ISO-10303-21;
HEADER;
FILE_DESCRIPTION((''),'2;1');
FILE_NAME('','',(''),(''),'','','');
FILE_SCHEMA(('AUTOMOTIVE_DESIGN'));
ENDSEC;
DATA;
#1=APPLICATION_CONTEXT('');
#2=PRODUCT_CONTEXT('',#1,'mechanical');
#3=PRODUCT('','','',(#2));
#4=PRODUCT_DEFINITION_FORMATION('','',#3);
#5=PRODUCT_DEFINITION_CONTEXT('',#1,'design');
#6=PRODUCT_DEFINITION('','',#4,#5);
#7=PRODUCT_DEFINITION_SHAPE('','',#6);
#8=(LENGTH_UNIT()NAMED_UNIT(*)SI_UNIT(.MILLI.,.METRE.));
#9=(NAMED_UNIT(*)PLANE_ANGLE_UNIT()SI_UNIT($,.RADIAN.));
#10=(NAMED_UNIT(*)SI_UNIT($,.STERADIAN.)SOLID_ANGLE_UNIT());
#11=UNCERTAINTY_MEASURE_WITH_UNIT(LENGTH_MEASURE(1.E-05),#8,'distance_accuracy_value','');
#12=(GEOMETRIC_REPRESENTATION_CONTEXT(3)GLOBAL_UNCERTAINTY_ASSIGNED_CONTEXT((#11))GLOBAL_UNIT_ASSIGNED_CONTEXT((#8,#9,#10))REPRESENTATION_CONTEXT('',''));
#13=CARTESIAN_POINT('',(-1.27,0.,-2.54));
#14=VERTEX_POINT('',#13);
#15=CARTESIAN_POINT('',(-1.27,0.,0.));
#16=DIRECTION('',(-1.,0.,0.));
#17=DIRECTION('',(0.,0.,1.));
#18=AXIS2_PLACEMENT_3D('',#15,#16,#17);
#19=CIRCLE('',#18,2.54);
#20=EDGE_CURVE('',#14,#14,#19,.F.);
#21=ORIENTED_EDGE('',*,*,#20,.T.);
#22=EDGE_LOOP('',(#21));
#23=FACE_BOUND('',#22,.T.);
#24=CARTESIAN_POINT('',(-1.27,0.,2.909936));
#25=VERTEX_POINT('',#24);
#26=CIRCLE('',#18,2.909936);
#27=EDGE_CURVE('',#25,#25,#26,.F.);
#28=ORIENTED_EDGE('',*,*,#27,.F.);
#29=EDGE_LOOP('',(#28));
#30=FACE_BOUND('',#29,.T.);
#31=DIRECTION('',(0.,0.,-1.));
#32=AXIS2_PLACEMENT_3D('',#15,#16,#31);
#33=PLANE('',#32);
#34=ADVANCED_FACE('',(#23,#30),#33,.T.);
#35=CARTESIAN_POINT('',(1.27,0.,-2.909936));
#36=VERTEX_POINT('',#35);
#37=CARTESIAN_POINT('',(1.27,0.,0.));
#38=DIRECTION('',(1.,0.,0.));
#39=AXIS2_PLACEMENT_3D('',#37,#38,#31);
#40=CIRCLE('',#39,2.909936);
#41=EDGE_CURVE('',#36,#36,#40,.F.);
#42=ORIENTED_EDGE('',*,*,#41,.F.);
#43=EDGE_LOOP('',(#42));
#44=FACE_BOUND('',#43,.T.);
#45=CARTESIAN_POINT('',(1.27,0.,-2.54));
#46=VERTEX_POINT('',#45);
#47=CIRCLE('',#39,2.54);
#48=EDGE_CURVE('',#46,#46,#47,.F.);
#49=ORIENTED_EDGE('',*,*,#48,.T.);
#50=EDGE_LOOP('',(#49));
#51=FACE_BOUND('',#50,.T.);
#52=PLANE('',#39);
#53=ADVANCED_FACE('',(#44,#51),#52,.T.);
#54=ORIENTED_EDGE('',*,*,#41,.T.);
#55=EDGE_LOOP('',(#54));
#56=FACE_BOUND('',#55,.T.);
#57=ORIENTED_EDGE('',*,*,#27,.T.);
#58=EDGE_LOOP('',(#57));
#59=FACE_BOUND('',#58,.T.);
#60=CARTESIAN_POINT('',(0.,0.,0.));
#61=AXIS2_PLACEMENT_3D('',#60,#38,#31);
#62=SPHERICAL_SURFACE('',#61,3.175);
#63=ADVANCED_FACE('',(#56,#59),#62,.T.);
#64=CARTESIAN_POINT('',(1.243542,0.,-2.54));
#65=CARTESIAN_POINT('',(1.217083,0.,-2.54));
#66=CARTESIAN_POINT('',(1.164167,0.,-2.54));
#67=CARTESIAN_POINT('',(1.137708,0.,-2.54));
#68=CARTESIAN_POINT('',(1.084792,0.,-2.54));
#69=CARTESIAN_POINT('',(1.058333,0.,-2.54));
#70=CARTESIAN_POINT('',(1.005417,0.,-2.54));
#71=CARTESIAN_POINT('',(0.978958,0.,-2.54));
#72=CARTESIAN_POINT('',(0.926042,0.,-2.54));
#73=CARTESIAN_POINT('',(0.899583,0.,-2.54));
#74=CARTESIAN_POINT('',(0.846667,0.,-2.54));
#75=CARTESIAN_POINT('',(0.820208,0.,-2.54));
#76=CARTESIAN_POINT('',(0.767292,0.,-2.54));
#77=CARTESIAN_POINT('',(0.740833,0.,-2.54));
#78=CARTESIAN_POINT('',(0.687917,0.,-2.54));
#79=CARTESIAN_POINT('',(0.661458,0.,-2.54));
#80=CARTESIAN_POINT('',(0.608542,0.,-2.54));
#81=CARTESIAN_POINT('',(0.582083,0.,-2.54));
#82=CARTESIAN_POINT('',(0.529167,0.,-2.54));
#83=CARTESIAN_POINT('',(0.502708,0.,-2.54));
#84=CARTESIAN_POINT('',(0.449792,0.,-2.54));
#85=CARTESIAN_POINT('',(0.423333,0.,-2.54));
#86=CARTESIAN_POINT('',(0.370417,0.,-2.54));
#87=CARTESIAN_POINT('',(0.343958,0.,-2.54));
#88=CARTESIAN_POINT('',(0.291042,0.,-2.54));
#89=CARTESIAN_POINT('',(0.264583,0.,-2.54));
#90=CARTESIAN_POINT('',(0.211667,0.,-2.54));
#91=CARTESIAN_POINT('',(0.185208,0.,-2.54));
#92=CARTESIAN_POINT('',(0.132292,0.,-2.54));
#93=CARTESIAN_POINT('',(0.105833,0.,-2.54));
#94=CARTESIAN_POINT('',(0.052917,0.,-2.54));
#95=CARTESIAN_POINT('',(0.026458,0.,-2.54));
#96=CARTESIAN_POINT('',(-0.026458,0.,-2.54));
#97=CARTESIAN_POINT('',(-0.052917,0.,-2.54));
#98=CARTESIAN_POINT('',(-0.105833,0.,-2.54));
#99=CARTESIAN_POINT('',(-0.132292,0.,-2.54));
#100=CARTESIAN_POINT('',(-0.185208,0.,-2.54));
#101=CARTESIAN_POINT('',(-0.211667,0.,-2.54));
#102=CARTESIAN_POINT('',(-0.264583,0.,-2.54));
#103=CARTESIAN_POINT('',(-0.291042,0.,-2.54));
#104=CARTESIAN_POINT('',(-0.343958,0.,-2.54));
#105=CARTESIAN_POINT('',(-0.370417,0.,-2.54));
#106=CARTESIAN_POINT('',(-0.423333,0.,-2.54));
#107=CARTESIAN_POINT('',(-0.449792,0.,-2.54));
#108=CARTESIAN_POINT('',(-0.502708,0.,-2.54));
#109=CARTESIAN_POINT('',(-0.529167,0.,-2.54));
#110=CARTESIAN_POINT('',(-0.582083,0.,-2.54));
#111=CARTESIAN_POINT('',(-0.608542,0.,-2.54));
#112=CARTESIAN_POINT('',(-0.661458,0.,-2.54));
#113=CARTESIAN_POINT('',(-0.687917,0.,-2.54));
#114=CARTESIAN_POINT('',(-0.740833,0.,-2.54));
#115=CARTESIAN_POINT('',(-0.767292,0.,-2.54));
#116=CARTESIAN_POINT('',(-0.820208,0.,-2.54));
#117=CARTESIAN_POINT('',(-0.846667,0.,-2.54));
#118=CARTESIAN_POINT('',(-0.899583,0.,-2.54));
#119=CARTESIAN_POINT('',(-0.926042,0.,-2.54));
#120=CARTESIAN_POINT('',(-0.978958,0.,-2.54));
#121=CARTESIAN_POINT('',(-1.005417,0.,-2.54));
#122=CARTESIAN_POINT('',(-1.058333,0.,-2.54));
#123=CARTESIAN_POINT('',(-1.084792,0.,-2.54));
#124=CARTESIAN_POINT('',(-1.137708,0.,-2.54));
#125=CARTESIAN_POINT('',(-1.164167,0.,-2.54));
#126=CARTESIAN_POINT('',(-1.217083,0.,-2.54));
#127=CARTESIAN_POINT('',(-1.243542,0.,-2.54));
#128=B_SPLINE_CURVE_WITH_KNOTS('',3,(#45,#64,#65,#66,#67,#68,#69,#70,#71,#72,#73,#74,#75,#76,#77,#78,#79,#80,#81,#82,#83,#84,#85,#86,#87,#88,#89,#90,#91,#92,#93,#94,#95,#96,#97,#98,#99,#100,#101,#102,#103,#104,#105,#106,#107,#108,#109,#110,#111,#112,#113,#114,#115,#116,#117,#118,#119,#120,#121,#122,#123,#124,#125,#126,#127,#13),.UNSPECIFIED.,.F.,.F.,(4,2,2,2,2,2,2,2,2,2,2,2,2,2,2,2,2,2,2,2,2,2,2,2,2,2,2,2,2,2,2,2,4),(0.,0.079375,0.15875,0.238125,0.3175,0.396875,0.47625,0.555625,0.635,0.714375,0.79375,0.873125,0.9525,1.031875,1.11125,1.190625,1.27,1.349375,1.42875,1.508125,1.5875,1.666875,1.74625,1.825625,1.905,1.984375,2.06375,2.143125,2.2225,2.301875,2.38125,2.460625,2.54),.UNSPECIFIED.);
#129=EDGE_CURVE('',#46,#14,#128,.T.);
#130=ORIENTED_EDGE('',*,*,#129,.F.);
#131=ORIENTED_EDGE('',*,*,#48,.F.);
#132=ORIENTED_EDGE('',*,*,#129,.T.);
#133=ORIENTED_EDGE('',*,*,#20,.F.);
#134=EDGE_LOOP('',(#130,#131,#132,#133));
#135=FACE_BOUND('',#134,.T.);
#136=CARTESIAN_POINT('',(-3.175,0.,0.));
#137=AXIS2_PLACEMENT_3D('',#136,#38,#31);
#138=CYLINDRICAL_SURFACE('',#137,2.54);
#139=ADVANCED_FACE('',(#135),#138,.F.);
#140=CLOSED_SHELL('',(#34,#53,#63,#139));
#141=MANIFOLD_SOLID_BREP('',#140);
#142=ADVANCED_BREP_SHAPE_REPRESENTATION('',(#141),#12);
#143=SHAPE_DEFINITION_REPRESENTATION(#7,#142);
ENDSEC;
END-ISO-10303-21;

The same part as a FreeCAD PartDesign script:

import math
import FreeCAD as App
import Part
import Sketcher
from FreeCAD import Vector
Q = App.Units.Quantity

doc = App.newDocument("Part")
body = doc.addObject("PartDesign::Body", "Body")

# Sketch on XZ plane
sketch1 = doc.addObject("Sketcher::SketchObject", "Sketch")
body.addObject(sketch1)
sketch1.AttachmentSupport = (doc.XZ_Plane, [""])
sketch1.MapMode = "FlatFace"
sketch1.addGeometry([
    Part.LineSegment(Vector(0, 3.175, 0), Vector(0, -3.175, 0)),
    Part.ArcOfCircle(Part.Circle(Vector(0, 0, 0), Vector(0, 0, 1), 3.175), math.radians(90), math.radians(270)),
], False)
sketch1.addConstraint([
    Sketcher.Constraint("Coincident", 0, 1, 1, 1),
    Sketcher.Constraint("Coincident", 1, 2, 0, 2),
    Sketcher.Constraint("Vertical", 0),
    Sketcher.Constraint("Coincident", 1, 3, -1, 1),
    Sketcher.Constraint("PointOnObject", 0, 1, -2),
    Sketcher.Constraint("Radius", 1, Q("0.125 in")),
])
revolution = doc.addObject("PartDesign::Revolution", "Revolution")
body.addObject(revolution)
revolution.Profile = sketch1
revolution.ReferenceAxis = (sketch1, ["V_Axis"])
revolution.Angle = 360

# Sketch on YZ plane
sketch2 = doc.addObject("Sketcher::SketchObject", "Sketch001")
body.addObject(sketch2)
sketch2.AttachmentSupport = (doc.YZ_Plane, [""])
sketch2.MapMode = "FlatFace"
sketch2.AttachmentOffset = App.Placement(Vector(0, 0, 0.175 * 25.4), App.Rotation())
sketch2.addGeometry(Part.Circle(Vector(0, 0, 0), Vector(0, 0, 1), 2.54), False)
sketch2.addConstraint([
    Sketcher.Constraint("Coincident", 0, 3, -1, 1),
    Sketcher.Constraint("Diameter", 0, Q("0.2 in")),
])
pocket1 = doc.addObject("PartDesign::Pocket", "Pocket")
body.addObject(pocket1)
pocket1.Profile = sketch2
pocket1.Type = "ThroughAll"
pocket1.Midplane = True

# Sketch on YZ plane
sketch3 = doc.addObject("Sketcher::SketchObject", "Sketch002")
body.addObject(sketch3)
sketch3.AttachmentSupport = (doc.YZ_Plane, [""])
sketch3.MapMode = "FlatFace"
sketch3.AttachmentOffset = App.Placement(Vector(0, 0, 0.25 * 25.4), App.Rotation())
sketch3.addGeometry(Part.Circle(Vector(0, 0, 0), Vector(0, 0, 1), 3.175), False)
sketch3.addConstraint([
    Sketcher.Constraint("Coincident", 0, 3, -1, 1),
    Sketcher.Constraint("Diameter", 0, Q("0.25 in")),
])
pocket2 = doc.addObject("PartDesign::Pocket", "Pocket001")
body.addObject(pocket2)
pocket2.Profile = sketch3
pocket2.Length = Q("0.2 in")
doc.recompute()

mirrored = doc.addObject("PartDesign::Mirrored", "Mirrored")
body.addObject(mirrored)
mirrored.Originals = [pocket2]
mirrored.MirrorPlane = (doc.YZ_Plane, [""])
body.Tip = mirrored

doc.recompute()
